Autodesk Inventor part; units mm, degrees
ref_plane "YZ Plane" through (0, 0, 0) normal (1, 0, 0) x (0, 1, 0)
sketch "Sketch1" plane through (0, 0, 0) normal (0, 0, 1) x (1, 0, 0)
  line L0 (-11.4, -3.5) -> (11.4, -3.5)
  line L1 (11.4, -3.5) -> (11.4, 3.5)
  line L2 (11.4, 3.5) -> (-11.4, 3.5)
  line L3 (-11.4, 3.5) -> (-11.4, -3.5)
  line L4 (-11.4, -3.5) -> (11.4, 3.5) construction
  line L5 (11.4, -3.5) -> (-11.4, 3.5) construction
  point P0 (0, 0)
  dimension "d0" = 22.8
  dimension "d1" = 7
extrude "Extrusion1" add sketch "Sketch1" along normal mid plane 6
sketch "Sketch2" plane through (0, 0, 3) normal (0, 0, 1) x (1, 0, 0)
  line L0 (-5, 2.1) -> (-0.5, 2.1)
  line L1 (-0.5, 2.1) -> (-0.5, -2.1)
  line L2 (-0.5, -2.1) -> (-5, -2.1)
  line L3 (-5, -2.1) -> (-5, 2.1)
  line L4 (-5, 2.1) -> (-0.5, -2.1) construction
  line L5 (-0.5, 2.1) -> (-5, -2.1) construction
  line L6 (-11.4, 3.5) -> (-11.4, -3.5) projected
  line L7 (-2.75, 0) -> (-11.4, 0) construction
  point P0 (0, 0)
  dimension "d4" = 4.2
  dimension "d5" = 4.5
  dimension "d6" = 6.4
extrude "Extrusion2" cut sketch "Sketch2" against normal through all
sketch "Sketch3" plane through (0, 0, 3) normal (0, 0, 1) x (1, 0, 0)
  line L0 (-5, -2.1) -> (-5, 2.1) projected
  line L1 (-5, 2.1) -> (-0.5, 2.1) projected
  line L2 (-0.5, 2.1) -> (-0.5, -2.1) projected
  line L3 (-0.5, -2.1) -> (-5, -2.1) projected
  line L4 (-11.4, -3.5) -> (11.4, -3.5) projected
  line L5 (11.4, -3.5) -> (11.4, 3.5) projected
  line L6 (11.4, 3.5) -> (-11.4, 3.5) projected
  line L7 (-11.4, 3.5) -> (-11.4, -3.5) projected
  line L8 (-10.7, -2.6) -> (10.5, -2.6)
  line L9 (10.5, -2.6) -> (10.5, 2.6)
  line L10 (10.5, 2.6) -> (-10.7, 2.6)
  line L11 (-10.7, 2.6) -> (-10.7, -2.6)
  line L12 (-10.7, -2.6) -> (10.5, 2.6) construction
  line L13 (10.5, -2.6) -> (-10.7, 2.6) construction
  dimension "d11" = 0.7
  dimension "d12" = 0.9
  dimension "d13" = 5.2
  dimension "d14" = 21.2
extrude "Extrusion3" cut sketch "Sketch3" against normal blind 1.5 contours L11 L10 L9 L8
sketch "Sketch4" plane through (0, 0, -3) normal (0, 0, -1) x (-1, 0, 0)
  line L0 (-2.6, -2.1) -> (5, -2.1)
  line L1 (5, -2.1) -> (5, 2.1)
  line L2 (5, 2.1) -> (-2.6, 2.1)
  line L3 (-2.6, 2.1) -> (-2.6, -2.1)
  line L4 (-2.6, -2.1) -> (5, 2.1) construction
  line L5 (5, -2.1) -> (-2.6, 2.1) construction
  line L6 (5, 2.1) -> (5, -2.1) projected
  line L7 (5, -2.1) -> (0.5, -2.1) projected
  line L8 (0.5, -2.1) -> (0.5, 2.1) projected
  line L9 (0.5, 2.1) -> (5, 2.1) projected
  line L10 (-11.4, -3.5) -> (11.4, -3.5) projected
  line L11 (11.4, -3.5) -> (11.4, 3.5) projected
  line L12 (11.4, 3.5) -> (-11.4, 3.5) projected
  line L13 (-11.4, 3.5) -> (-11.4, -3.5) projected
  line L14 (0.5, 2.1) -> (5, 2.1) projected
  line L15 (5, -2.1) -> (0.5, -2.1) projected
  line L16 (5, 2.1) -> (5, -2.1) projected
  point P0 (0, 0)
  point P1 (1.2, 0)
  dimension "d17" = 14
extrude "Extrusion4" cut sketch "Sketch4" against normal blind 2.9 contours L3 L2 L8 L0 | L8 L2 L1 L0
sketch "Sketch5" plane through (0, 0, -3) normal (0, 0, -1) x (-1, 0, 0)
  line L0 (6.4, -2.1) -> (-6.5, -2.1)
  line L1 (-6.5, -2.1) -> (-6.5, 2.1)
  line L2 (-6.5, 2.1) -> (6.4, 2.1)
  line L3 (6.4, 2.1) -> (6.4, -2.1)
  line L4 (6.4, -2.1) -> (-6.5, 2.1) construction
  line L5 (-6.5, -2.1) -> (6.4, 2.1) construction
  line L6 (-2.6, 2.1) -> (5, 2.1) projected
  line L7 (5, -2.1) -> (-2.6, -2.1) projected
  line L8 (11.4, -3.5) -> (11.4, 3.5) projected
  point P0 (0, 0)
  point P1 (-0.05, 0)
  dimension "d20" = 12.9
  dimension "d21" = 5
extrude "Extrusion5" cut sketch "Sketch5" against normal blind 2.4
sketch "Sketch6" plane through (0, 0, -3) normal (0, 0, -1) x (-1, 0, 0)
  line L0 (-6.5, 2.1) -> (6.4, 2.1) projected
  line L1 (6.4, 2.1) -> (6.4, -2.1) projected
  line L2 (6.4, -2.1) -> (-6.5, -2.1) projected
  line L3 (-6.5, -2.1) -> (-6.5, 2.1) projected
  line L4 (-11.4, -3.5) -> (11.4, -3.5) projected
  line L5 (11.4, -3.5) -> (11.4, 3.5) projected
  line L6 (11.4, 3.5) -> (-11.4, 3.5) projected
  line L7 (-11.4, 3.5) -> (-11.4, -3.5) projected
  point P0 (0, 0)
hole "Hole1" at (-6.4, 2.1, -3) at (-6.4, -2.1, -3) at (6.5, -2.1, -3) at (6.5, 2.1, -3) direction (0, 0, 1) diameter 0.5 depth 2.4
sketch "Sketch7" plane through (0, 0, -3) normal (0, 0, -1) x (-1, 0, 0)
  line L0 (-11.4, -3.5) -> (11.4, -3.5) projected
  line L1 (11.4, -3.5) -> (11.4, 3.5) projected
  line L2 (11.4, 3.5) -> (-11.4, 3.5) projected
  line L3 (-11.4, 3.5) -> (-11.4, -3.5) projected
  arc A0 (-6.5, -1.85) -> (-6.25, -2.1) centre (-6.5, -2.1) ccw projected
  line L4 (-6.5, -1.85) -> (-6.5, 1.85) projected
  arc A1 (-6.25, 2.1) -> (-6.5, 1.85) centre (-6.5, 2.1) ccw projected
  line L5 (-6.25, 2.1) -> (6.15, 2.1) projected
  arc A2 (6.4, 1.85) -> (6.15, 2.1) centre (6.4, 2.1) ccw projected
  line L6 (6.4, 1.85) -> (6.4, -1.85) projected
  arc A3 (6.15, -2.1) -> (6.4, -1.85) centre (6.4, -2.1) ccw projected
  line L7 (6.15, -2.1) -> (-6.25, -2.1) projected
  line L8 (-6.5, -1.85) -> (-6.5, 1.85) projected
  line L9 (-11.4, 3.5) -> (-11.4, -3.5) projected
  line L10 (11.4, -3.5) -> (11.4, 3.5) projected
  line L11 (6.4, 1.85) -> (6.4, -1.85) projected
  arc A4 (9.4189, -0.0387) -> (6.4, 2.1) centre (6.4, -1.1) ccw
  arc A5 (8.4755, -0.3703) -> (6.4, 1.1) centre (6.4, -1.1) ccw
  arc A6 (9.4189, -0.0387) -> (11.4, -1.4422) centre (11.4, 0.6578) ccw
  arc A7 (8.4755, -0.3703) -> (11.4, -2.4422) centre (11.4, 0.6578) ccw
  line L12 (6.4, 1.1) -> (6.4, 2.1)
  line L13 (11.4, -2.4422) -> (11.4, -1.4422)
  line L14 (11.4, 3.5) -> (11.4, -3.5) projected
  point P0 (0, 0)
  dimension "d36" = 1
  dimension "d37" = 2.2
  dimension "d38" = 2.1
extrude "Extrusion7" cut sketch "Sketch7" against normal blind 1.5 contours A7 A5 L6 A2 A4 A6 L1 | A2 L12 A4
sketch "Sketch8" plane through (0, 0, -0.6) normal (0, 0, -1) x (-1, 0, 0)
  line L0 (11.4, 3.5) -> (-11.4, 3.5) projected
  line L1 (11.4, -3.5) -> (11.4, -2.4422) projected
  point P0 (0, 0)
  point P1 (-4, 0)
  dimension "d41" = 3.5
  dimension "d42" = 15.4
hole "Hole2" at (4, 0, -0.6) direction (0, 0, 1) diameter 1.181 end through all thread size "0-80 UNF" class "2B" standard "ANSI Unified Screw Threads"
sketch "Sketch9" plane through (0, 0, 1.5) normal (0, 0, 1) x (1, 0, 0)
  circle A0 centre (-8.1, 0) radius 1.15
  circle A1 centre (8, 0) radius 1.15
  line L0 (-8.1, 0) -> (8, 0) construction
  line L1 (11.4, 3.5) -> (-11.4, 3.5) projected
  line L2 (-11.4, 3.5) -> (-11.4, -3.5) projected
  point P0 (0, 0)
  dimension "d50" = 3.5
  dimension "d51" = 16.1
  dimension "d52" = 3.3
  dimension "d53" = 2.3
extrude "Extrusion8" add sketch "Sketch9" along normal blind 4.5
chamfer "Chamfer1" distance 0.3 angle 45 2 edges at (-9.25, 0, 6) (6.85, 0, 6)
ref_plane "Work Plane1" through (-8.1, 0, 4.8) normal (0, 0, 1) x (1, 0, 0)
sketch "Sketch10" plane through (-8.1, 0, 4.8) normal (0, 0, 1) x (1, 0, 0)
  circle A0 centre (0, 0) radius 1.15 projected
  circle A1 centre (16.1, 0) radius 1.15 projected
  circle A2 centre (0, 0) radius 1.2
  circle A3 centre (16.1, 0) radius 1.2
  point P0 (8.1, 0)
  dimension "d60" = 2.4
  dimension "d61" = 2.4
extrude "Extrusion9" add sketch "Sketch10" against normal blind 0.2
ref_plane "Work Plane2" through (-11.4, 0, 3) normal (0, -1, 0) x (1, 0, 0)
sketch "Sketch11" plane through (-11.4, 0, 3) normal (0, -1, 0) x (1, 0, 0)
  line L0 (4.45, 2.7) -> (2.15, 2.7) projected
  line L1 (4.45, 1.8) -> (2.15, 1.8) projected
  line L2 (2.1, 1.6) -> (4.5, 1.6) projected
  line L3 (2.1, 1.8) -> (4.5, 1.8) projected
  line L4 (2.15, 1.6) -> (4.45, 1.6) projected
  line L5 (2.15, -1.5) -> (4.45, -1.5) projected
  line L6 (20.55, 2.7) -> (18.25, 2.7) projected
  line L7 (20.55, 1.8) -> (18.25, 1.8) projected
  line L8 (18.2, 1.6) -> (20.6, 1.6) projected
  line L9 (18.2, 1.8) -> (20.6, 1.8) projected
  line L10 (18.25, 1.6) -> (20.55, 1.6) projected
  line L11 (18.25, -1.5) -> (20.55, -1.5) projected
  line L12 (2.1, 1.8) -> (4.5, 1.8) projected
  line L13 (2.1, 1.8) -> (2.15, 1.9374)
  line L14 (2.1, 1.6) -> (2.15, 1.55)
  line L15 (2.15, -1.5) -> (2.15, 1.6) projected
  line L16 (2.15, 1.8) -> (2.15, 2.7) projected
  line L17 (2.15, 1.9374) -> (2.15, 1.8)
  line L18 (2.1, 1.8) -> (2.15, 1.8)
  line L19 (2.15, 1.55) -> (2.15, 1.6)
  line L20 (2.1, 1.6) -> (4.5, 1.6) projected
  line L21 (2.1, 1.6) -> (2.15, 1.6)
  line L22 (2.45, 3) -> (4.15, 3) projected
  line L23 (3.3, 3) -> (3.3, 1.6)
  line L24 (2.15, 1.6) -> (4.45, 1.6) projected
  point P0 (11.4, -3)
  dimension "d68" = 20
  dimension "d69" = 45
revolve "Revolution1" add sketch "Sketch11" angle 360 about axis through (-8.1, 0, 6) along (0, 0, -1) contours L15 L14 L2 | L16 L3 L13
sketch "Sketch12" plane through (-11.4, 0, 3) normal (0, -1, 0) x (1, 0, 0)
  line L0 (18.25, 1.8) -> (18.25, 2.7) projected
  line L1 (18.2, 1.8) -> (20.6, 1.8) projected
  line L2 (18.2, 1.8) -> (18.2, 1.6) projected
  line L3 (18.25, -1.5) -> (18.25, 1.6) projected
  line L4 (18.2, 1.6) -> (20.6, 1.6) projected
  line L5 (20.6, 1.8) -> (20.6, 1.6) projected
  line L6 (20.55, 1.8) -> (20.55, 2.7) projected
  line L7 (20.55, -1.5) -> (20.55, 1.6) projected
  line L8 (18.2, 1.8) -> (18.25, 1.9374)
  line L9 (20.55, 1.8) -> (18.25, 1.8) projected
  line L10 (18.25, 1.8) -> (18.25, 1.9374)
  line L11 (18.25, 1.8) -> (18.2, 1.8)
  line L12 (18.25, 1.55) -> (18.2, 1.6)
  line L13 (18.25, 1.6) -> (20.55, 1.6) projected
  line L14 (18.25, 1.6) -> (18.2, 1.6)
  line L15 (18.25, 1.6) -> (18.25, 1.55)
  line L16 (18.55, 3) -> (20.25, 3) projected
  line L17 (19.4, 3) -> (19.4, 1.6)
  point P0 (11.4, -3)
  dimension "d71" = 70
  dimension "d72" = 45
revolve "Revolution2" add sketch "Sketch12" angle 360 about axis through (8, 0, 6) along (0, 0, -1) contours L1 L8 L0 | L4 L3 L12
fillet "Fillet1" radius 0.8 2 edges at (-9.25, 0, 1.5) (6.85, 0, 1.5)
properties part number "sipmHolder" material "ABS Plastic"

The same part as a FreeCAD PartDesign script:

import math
import FreeCAD as App
import Part
import Sketcher
Q = App.Units.Quantity


def edges_at(feature, points):
    """Names of the edges that pass closest to the given points."""
    edges = feature.Shape.Edges
    near = lambda p: min(range(len(edges)), key=lambda i: edges[i].distToShape(Part.Vertex(*p))[0])
    return sorted({f"Edge{near(p) + 1}" for p in points})


def add_polygon(sketch, points):
    """Adds a closed chain of lines whose ends are joined by coincident constraints."""
    first, n = sketch.GeometryCount, len(points)
    for a, b in zip(points, points[1:] + points[:1]):
        sketch.addGeometry(Part.LineSegment(App.Vector(*a, 0), App.Vector(*b, 0)), False)
    for i in range(n):
        sketch.addConstraint(Sketcher.Constraint("Coincident", first + i, 2, first + (i + 1) % n, 1))

doc = App.newDocument("Part")
body = doc.addObject("PartDesign::Body", "Body")

# Sketch on XY plane
sketch1 = doc.addObject("Sketcher::SketchObject", "Sketch")
body.addObject(sketch1)
sketch1.AttachmentSupport = (doc.XY_Plane, [""])
sketch1.MapMode = "FlatFace"
add_polygon(sketch1, [(-11, 4), (-11, -4), (11, -4), (11, 4)])  # lines 0-3
sketch1.addConstraint(Sketcher.Constraint("Vertical", 0))
sketch1.addConstraint(Sketcher.Constraint("Horizontal", 1))
sketch1.addConstraint(Sketcher.Constraint("Vertical", 2))
sketch1.addConstraint(Sketcher.Constraint("Horizontal", 3))
sketch1.addConstraint(Sketcher.Constraint("Symmetric", 0, 2, 2, 2, -1, 1))
sketch1.addConstraint(Sketcher.Constraint("DistanceY", 0, 2, 0, 1, Q("7 mm")))
sketch1.addConstraint(Sketcher.Constraint("DistanceX", 1, 1, 1, 2, Q("22.8 mm")))
pad1 = doc.addObject("PartDesign::Pad", "Pad")
body.addObject(pad1)
pad1.Profile = sketch1
pad1.Length = 6
pad1.Midplane = True

# Sketch on XY plane
sketch2 = doc.addObject("Sketcher::SketchObject", "Sketch001")
body.addObject(sketch2)
sketch2.AttachmentSupport = (doc.XY_Plane, [""])
sketch2.MapMode = "FlatFace"
sketch2.AttachmentOffset = App.Placement(App.Vector(0, 0, 3), App.Rotation())
add_polygon(sketch2, [(-0.5, 2.1), (-5, 2.1), (-5, -2.1), (-0.5, -2.1)])  # lines 0-3
sketch2.addConstraint(Sketcher.Constraint("Horizontal", 0))
sketch2.addConstraint(Sketcher.Constraint("Vertical", 1))
sketch2.addConstraint(Sketcher.Constraint("Horizontal", 2))
sketch2.addConstraint(Sketcher.Constraint("Vertical", 3))
sketch2.addConstraint(Sketcher.Constraint("DistanceX", 0, 2, 0, 1, Q("4.5 mm")))
sketch2.addConstraint(Sketcher.Constraint("DistanceY", 1, 2, 1, 1, Q("4.2 mm")))
sketch2.addConstraint(Sketcher.Constraint("DistanceX", 0, 2, -1, 1, Q("5 mm")))
sketch2.addConstraint(Sketcher.Constraint("DistanceY", -1, 1, 0, 2, Q("2.1 mm")))
pocket1 = doc.addObject("PartDesign::Pocket", "Pocket")
body.addObject(pocket1)
pocket1.Profile = sketch2
pocket1.Type = "ThroughAll"

# Sketch on XY plane
sketch3 = doc.addObject("Sketcher::SketchObject", "Sketch002")
body.addObject(sketch3)
sketch3.AttachmentSupport = (doc.XY_Plane, [""])
sketch3.MapMode = "FlatFace"
sketch3.AttachmentOffset = App.Placement(App.Vector(0, 0, 3), App.Rotation())
add_polygon(sketch3, [(-10.7, 2.6), (-10.7, -2.6), (10.5, -2.6), (10.5, 2.6)])  # lines 0-3
add_polygon(sketch3, [(-0.5, -2.1), (-5, -2.1), (-5, 2.1), (-0.5, 2.1)])  # lines 4-7
sketch3.addConstraint(Sketcher.Constraint("Vertical", 0))
sketch3.addConstraint(Sketcher.Constraint("Horizontal", 1))
sketch3.addConstraint(Sketcher.Constraint("Vertical", 2))
sketch3.addConstraint(Sketcher.Constraint("Horizontal", 3))
sketch3.addConstraint(Sketcher.Constraint("Horizontal", 4))
sketch3.addConstraint(Sketcher.Constraint("Vertical", 5))
sketch3.addConstraint(Sketcher.Constraint("Horizontal", 6))
sketch3.addConstraint(Sketcher.Constraint("Vertical", 7))
sketch3.addConstraint(Sketcher.Constraint("DistanceX", 1, 1, 1, 2, Q("21.2 mm")))
sketch3.addConstraint(Sketcher.Constraint("DistanceY", 0, 2, 0, 1, Q("5.2 mm")))
sketch3.addConstraint(Sketcher.Constraint("DistanceX", 4, 2, 4, 1, Q("4.5 mm")))
sketch3.addConstraint(Sketcher.Constraint("DistanceY", 5, 1, 5, 2, Q("4.2 mm")))
sketch3.addConstraint(Sketcher.Constraint("DistanceX", 4, 2, -1, 1, Q("5 mm")))
sketch3.addConstraint(Sketcher.Constraint("DistanceX", 6, 2, 2, 2, Q("11 mm")))
sketch3.addConstraint(Sketcher.Constraint("DistanceY", 0, 2, -1, 1, Q("2.6 mm")))
sketch3.addConstraint(Sketcher.Constraint("DistanceY", 4, 2, -1, 1, Q("2.1 mm")))
pocket2 = doc.addObject("PartDesign::Pocket", "Pocket001")
body.addObject(pocket2)
pocket2.Profile = sketch3
pocket2.Length = 1.5

# Sketch on XY plane
sketch4 = doc.addObject("Sketcher::SketchObject", "Sketch003")
body.addObject(sketch4)
sketch4.AttachmentSupport = (doc.XY_Plane, [""])
sketch4.MapMode = "FlatFace"
sketch4.AttachmentOffset = App.Placement(App.Vector(0, 0, -3), App.Rotation())
add_polygon(sketch4, [(2.6, 2.1), (2.6, -2.1), (-5, -2.1), (-5, 2.1)])  # lines 0-3
sketch4.addConstraint(Sketcher.Constraint("Vertical", 0))
sketch4.addConstraint(Sketcher.Constraint("Horizontal", 1))
sketch4.addConstraint(Sketcher.Constraint("Vertical", 2))
sketch4.addConstraint(Sketcher.Constraint("Horizontal", 3))
sketch4.addConstraint(Sketcher.Constraint("DistanceX", 1, 2, 1, 1, Q("7.6 mm")))
sketch4.addConstraint(Sketcher.Constraint("DistanceY", 0, 2, 0, 1, Q("4.2 mm")))
sketch4.addConstraint(Sketcher.Constraint("DistanceX", 1, 2, -1, 1, Q("5 mm")))
sketch4.addConstraint(Sketcher.Constraint("DistanceY", 0, 2, -1, 1, Q("2.1 mm")))
pocket3 = doc.addObject("PartDesign::Pocket", "Pocket002")
body.addObject(pocket3)
pocket3.Profile = sketch4
pocket3.Length = 2.9
pocket3.Reversed = True

# Sketch on XY plane
sketch5 = doc.addObject("Sketcher::SketchObject", "Sketch004")
body.addObject(sketch5)
sketch5.AttachmentSupport = (doc.XY_Plane, [""])
sketch5.MapMode = "FlatFace"
sketch5.AttachmentOffset = App.Placement(App.Vector(0, 0, -3), App.Rotation())
add_polygon(sketch5, [(6.5, -2.1), (-6.4, -2.1), (-6.4, 2.1), (6.5, 2.1)])  # lines 0-3
sketch5.addConstraint(Sketcher.Constraint("Horizontal", 0))
sketch5.addConstraint(Sketcher.Constraint("Vertical", 1))
sketch5.addConstraint(Sketcher.Constraint("Horizontal", 2))
sketch5.addConstraint(Sketcher.Constraint("Vertical", 3))
sketch5.addConstraint(Sketcher.Constraint("DistanceX", 0, 2, 0, 1, Q("12.9 mm")))
sketch5.addConstraint(Sketcher.Constraint("DistanceY", 1, 1, 1, 2, Q("4.2 mm")))
sketch5.addConstraint(Sketcher.Constraint("DistanceX", 0, 2, -1, 1, Q("6.4 mm")))
sketch5.addConstraint(Sketcher.Constraint("DistanceY", 0, 2, -1, 1, Q("2.1 mm")))
pocket4 = doc.addObject("PartDesign::Pocket", "Pocket003")
body.addObject(pocket4)
pocket4.Profile = sketch5
pocket4.Length = 2.4
pocket4.Reversed = True

# Sketch on XY plane
sketch6 = doc.addObject("Sketcher::SketchObject", "Sketch005")
body.addObject(sketch6)
sketch6.AttachmentSupport = (doc.XY_Plane, [""])
sketch6.MapMode = "FlatFace"
sketch6.AttachmentOffset = App.Placement(App.Vector(0, 0, -3), App.Rotation())
sketch6.addGeometry(Part.Circle(App.Vector(-6.4, 2.1, 0), App.Vector(0, 0, 1), 0.25), False)
sketch6.addGeometry(Part.Circle(App.Vector(-6.4, -2.1, 0), App.Vector(0, 0, 1), 0.25), False)
sketch6.addGeometry(Part.Circle(App.Vector(6.5, -2.1, 0), App.Vector(0, 0, 1), 0.25), False)
sketch6.addGeometry(Part.Circle(App.Vector(6.5, 2.1, 0), App.Vector(0, 0, 1), 0.25), False)
sketch6.addConstraint(Sketcher.Constraint("Equal", 0, 1))
sketch6.addConstraint(Sketcher.Constraint("Equal", 1, 2))
sketch6.addConstraint(Sketcher.Constraint("Equal", 2, 3))
sketch6.addConstraint(Sketcher.Constraint("Symmetric", 0, 3, 1, 3, -1))
sketch6.addConstraint(Sketcher.Constraint("Symmetric", 2, 3, 3, 3, -1))
sketch6.addConstraint(Sketcher.Constraint("Horizontal", 1, 3, 2, 3))
sketch6.addConstraint(Sketcher.Constraint("Diameter", 0, Q("0.5 mm")))
sketch6.addConstraint(Sketcher.Constraint("DistanceX", 0, 3, -1, 1, Q("6.4 mm")))
sketch6.addConstraint(Sketcher.Constraint("DistanceY", -1, 1, 0, 3, Q("2.1 mm")))
sketch6.addConstraint(Sketcher.Constraint("DistanceX", -1, 1, 2, 3, Q("6.5 mm")))
doc.recompute()
hole = doc.addObject("PartDesign::Hole", "Hole")
body.addObject(hole)
hole.Profile = sketch6
hole.ThreadType = "None"
hole.Diameter = 0.5
hole.DepthType = "Dimension"
hole.Depth = 2.4
hole.DrillPoint = "Flat"
hole.Reversed = True

# Sketch on XY plane
sketch7 = doc.addObject("Sketcher::SketchObject", "Sketch006")
body.addObject(sketch7)
sketch7.AttachmentSupport = (doc.XY_Plane, [""])
sketch7.MapMode = "FlatFace"
sketch7.AttachmentOffset = App.Placement(App.Vector(0, 0, -3), App.Rotation())
sketch7.addGeometry(Part.ArcOfCircle(Part.Circle(App.Vector(-11.4, 0.7, 0), App.Vector(0, 0, 1), 3.1), math.radians(-90), math.radians(-19)), False)
sketch7.addGeometry(Part.LineSegment(App.Vector(-11.4, -2.4, 0), App.Vector(-11.4, -1.4, 0)), False)
sketch7.addGeometry(Part.ArcOfCircle(Part.Circle(App.Vector(-11.4, 0.7, 0), App.Vector(0, 0, 1), 2.1), math.radians(-90), math.radians(-19)), False)
sketch7.addGeometry(Part.ArcOfCircle(Part.Circle(App.Vector(-6.4, -1.1, 0), App.Vector(0, 0, 1), 3.2), math.radians(90), math.radians(161)), False)
sketch7.addGeometry(Part.LineSegment(App.Vector(-6.4, 2.1, 0), App.Vector(-6.4, 1.1, 0)), False)
sketch7.addGeometry(Part.ArcOfCircle(Part.Circle(App.Vector(-6.4, -1.1, 0), App.Vector(0, 0, 1), 2.2), math.radians(90), math.radians(161)), False)
sketch7.addConstraint(Sketcher.Constraint("Coincident", 0, 1, 1, 1))
sketch7.addConstraint(Sketcher.Constraint("Coincident", 1, 2, 2, 1))
sketch7.addConstraint(Sketcher.Constraint("Tangent", 2, 2, 3, 2))
sketch7.addConstraint(Sketcher.Constraint("Coincident", 3, 1, 4, 1))
sketch7.addConstraint(Sketcher.Constraint("Coincident", 4, 2, 5, 1))
sketch7.addConstraint(Sketcher.Constraint("Tangent", 5, 2, 0, 2))
sketch7.addConstraint(Sketcher.Constraint("Vertical", 1))
sketch7.addConstraint(Sketcher.Constraint("Vertical", 4))
sketch7.addConstraint(Sketcher.Constraint("Coincident", 2, 3, 0, 3))
sketch7.addConstraint(Sketcher.Constraint("Coincident", 5, 3, 3, 3))
sketch7.addConstraint(Sketcher.Constraint("Vertical", 2, 3, 0, 1))
sketch7.addConstraint(Sketcher.Constraint("Vertical", 5, 3, 3, 1))
sketch7.addConstraint(Sketcher.Constraint("Radius", 2, Q("2.1 mm")))
sketch7.addConstraint(Sketcher.Constraint("Radius", 5, Q("2.2 mm")))
sketch7.addConstraint(Sketcher.Constraint("DistanceY", 1, 1, 1, 2, Q("1 mm")))
sketch7.addConstraint(Sketcher.Constraint("DistanceY", -1, 1, 3, 1, Q("2.1 mm")))
sketch7.addConstraint(Sketcher.Constraint("DistanceX", 0, 3, 3, 3, Q("5 mm")))
sketch7.addConstraint(Sketcher.Constraint("DistanceX", 0, 3, -1, 1, Q("11.4 mm")))
pocket5 = doc.addObject("PartDesign::Pocket", "Pocket004")
body.addObject(pocket5)
pocket5.Profile = sketch7
pocket5.Length = 1.5
pocket5.Reversed = True

# Sketch on XY plane
sketch8 = doc.addObject("Sketcher::SketchObject", "Sketch007")
body.addObject(sketch8)
sketch8.AttachmentSupport = (doc.XY_Plane, [""])
sketch8.MapMode = "FlatFace"
sketch8.AttachmentOffset = App.Placement(App.Vector(0, 0, -0.6), App.Rotation())
sketch8.addGeometry(Part.Circle(App.Vector(4, 0, 0), App.Vector(0, 0, 1), 0.6), False)
sketch8.addConstraint(Sketcher.Constraint("PointOnObject", 0, 3, -1))
sketch8.addConstraint(Sketcher.Constraint("Diameter", 0, Q("1.181 mm")))
sketch8.addConstraint(Sketcher.Constraint("DistanceX", -1, 1, 0, 3, Q("4 mm")))
doc.recompute()
hole2 = doc.addObject("PartDesign::Hole", "Hole001")
body.addObject(hole2)
hole2.Profile = sketch8
hole2.ThreadType = "None"
hole2.Diameter = 1.181
hole2.DepthType = "ThroughAll"
hole2.Reversed = True

# Sketch on XY plane
sketch9 = doc.addObject("Sketcher::SketchObject", "Sketch008")
body.addObject(sketch9)
sketch9.AttachmentSupport = (doc.XY_Plane, [""])
sketch9.MapMode = "FlatFace"
sketch9.AttachmentOffset = App.Placement(App.Vector(0, 0, 1.5), App.Rotation())
sketch9.addGeometry(Part.Circle(App.Vector(-8.1, 0, 0), App.Vector(0, 0, 1), 1.1), False)
sketch9.addGeometry(Part.Circle(App.Vector(8, 0, 0), App.Vector(0, 0, 1), 1.1), False)
sketch9.addConstraint(Sketcher.Constraint("Equal", 0, 1))
sketch9.addConstraint(Sketcher.Constraint("PointOnObject", 0, 3, -1))
sketch9.addConstraint(Sketcher.Constraint("PointOnObject", 1, 3, -1))
sketch9.addConstraint(Sketcher.Constraint("Diameter", 0, Q("2.3 mm")))
sketch9.addConstraint(Sketcher.Constraint("DistanceX", 0, 3, 1, 3, Q("16.1 mm")))
sketch9.addConstraint(Sketcher.Constraint("DistanceX", -1, 1, 1, 3, Q("8 mm")))
pad2 = doc.addObject("PartDesign::Pad", "Pad001")
body.addObject(pad2)
pad2.Profile = sketch9
pad2.Length = 4.5
doc.recompute()

chamfer = doc.addObject("PartDesign::Chamfer", "Chamfer")
body.addObject(chamfer)
chamfer.Base = (pad2, edges_at(pad2, [(-9.25, 0, 6), (6.85, 0, 6)]))
chamfer.Size = 0.3

# Sketch on XY plane
sketch10 = doc.addObject("Sketcher::SketchObject", "Sketch009")
body.addObject(sketch10)
sketch10.AttachmentSupport = (doc.XY_Plane, [""])
sketch10.MapMode = "FlatFace"
sketch10.AttachmentOffset = App.Placement(App.Vector(0, 0, 4.8), App.Rotation())
sketch10.addGeometry(Part.Circle(App.Vector(-8.1, 0, 0), App.Vector(0, 0, 1), 1.2), False)
sketch10.addGeometry(Part.Circle(App.Vector(-8.1, 0, 0), App.Vector(0, 0, 1), 1.1), False)
sketch10.addGeometry(Part.Circle(App.Vector(8, 0, 0), App.Vector(0, 0, 1), 1.2), False)
sketch10.addGeometry(Part.Circle(App.Vector(8, 0, 0), App.Vector(0, 0, 1), 1.1), False)
sketch10.addConstraint(Sketcher.Constraint("Coincident", 1, 3, 0, 3))
sketch10.addConstraint(Sketcher.Constraint("Coincident", 3, 3, 2, 3))
sketch10.addConstraint(Sketcher.Constraint("Equal", 0, 2))
sketch10.addConstraint(Sketcher.Constraint("Equal", 1, 3))
sketch10.addConstraint(Sketcher.Constraint("PointOnObject", 0, 3, -1))
sketch10.addConstraint(Sketcher.Constraint("PointOnObject", 2, 3, -1))
sketch10.addConstraint(Sketcher.Constraint("Diameter", 0, Q("2.4 mm")))
sketch10.addConstraint(Sketcher.Constraint("Diameter", 1, Q("2.3 mm")))
sketch10.addConstraint(Sketcher.Constraint("DistanceX", -1, 1, 2, 3, Q("8 mm")))
sketch10.addConstraint(Sketcher.Constraint("DistanceX", 0, 3, -1, 1, Q("8.1 mm")))
pad3 = doc.addObject("PartDesign::Pad", "Pad002")
body.addObject(pad3)
pad3.Profile = sketch10
pad3.Length = 0.2
pad3.Reversed = True

# Sketch on XZ plane
sketch11 = doc.addObject("Sketcher::SketchObject", "Sketch010")
body.addObject(sketch11)
sketch11.AttachmentSupport = (doc.XZ_Plane, [""])
sketch11.MapMode = "FlatFace"
add_polygon(sketch11, [(-9.25, 4.55), (-9.25, 4.6), (-9.3, 4.6)])  # lines 0-2
add_polygon(sketch11, [(-9.25, 4.8), (-9.25, 4.937), (-9.3, 4.8)])  # lines 3-5
sketch11.addGeometry(Part.LineSegment(App.Vector(-8.1, 4.937, 0), App.Vector(-8.1, 4.55, 0)), True)  # axis
sketch11.addConstraint(Sketcher.Constraint("Vertical", 0))
sketch11.addConstraint(Sketcher.Constraint("Horizontal", 1))
sketch11.addConstraint(Sketcher.Constraint("Vertical", 3))
sketch11.addConstraint(Sketcher.Constraint("Horizontal", 5))
sketch11.addConstraint(Sketcher.Constraint("Vertical", 6))
sketch11.addConstraint(Sketcher.Constraint("Horizontal", 3, 2, 6, 1))
sketch11.addConstraint(Sketcher.Constraint("Horizontal", 2, 2, 6, 2))
sketch11.addConstraint(Sketcher.Constraint("Vertical", 2, 2, 3, 2))
sketch11.addConstraint(Sketcher.Constraint("Vertical", 1, 2, 4, 2))
sketch11.addConstraint(Sketcher.Constraint("Equal", 5, 0))
sketch11.addConstraint(Sketcher.Constraint("DistanceX", 1, 2, 1, 1, Q("0.05 mm")))
sketch11.addConstraint(Sketcher.Constraint("DistanceY", -1, 1, 0, 2, Q("4.6 mm")))
sketch11.addConstraint(Sketcher.Constraint("DistanceX", 1, 2, -1, 1, Q("9.3 mm")))
sketch11.addConstraint(Sketcher.Constraint("DistanceY", -1, 1, 4, 2, Q("4.8 mm")))
sketch11.addConstraint(Sketcher.Constraint("DistanceX", 6, 1, -1, 1, Q("8.1 mm")))
sketch11.addConstraint(Sketcher.Constraint("DistanceY", 3, 1, 3, 2, Q("0.1374 mm")))
revolution = doc.addObject("PartDesign::Revolution", "Revolution")
body.addObject(revolution)
revolution.Profile = sketch11
revolution.ReferenceAxis = (sketch11, ["Axis0"])
revolution.Angle = 360

# Sketch on XZ plane
sketch12 = doc.addObject("Sketcher::SketchObject", "Sketch011")
body.addObject(sketch12)
sketch12.AttachmentSupport = (doc.XZ_Plane, [""])
sketch12.MapMode = "FlatFace"
add_polygon(sketch12, [(6.8, 4.8), (6.85, 4.8), (6.85, 4.937)])  # lines 0-2
add_polygon(sketch12, [(6.85, 4.6), (6.8, 4.6), (6.85, 4.55)])  # lines 3-5
sketch12.addGeometry(Part.LineSegment(App.Vector(8, 4.937, 0), App.Vector(8, 4.55, 0)), True)  # axis
sketch12.addConstraint(Sketcher.Constraint("Horizontal", 0))
sketch12.addConstraint(Sketcher.Constraint("Vertical", 1))
sketch12.addConstraint(Sketcher.Constraint("Horizontal", 3))
sketch12.addConstraint(Sketcher.Constraint("Vertical", 5))
sketch12.addConstraint(Sketcher.Constraint("Vertical", 6))
sketch12.addConstraint(Sketcher.Constraint("Horizontal", 1, 2, 6, 1))
sketch12.addConstraint(Sketcher.Constraint("Horizontal", 4, 2, 6, 2))
sketch12.addConstraint(Sketcher.Constraint("Vertical", 2, 2, 3, 2))
sketch12.addConstraint(Sketcher.Constraint("Vertical", 1, 2, 4, 2))
sketch12.addConstraint(Sketcher.Constraint("Equal", 3, 5))
sketch12.addConstraint(Sketcher.Constraint("DistanceX", -1, 1, 6, 1, Q("8 mm")))
sketch12.addConstraint(Sketcher.Constraint("DistanceX", 0, 1, 0, 2, Q("0.05 mm")))
sketch12.addConstraint(Sketcher.Constraint("DistanceY", -1, 1, 0, 2, Q("4.8 mm")))
sketch12.addConstraint(Sketcher.Constraint("DistanceX", -1, 1, 2, 2, Q("6.8 mm")))
sketch12.addConstraint(Sketcher.Constraint("DistanceY", -1, 1, 3, 2, Q("4.6 mm")))
sketch12.addConstraint(Sketcher.Constraint("DistanceY", 1, 1, 1, 2, Q("0.1374 mm")))
revolution2 = doc.addObject("PartDesign::Revolution", "Revolution001")
body.addObject(revolution2)
revolution2.Profile = sketch12
revolution2.ReferenceAxis = (sketch12, ["Axis0"])
revolution2.Angle = 360
doc.recompute()

fillet = doc.addObject("PartDesign::Fillet", "Fillet")
body.addObject(fillet)
fillet.Base = (revolution2, edges_at(revolution2, [(-9.25, 0, 1.5), (6.85, 0, 1.5)]))
fillet.Radius = 0.8

doc.recompute()
